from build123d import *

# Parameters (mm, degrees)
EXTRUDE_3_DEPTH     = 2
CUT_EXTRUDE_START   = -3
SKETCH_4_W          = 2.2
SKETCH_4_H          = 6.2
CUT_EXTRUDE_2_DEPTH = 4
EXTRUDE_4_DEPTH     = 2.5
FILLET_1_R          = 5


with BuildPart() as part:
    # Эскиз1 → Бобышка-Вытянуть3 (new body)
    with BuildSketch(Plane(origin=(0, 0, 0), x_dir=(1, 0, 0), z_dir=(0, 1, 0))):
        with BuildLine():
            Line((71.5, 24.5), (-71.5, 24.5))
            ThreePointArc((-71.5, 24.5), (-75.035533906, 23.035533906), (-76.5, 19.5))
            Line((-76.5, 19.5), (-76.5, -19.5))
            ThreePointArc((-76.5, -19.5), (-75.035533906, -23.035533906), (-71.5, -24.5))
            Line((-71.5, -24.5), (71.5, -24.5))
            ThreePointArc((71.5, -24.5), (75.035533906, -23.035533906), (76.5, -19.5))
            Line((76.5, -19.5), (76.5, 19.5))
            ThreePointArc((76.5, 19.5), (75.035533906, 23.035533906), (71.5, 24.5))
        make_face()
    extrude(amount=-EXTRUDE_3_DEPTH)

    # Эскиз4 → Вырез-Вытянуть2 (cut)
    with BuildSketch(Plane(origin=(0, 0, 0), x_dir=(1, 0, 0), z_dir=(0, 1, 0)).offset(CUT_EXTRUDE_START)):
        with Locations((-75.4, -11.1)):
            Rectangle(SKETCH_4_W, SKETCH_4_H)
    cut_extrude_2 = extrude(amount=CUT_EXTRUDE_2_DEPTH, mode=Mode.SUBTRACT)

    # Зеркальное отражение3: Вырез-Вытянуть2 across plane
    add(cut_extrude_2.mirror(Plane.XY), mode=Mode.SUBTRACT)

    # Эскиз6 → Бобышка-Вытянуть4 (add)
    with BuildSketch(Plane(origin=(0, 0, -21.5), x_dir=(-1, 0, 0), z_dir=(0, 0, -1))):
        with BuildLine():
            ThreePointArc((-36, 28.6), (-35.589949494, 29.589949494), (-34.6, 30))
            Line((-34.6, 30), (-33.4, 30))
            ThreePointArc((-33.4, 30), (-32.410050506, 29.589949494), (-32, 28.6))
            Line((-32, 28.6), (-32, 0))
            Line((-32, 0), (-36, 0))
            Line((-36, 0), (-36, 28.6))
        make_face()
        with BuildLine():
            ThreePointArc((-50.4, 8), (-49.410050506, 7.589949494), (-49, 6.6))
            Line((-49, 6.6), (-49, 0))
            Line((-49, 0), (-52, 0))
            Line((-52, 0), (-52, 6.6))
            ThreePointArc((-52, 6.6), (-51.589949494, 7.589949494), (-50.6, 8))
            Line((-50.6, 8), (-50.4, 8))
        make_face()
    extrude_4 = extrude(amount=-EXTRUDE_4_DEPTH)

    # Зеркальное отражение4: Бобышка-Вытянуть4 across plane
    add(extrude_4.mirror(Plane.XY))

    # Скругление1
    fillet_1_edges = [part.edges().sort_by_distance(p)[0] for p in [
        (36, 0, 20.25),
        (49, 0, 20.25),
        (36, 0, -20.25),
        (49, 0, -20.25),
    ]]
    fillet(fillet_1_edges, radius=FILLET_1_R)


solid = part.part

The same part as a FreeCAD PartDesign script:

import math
import FreeCAD as App
import Part
import Sketcher


def edges_at(feature, points):
    """Names of the edges that pass closest to the given points."""
    edges = feature.Shape.Edges
    near = lambda p: min(range(len(edges)), key=lambda i: edges[i].distToShape(Part.Vertex(*p))[0])
    return sorted({f"Edge{near(p) + 1}" for p in points})

doc = App.newDocument("Part")
body = doc.addObject("PartDesign::Body", "Body")

# Sketch on XZ plane
sketch1 = body.newObject("Sketcher::SketchObject", "Sketch")
sketch1.AttachmentSupport = (doc.getObject("XZ_Plane"), [""])
sketch1.MapMode = "FlatFace"
sketch1.addGeometry(Part.LineSegment(App.Vector(72, -24, 0), App.Vector(-72, -24, 0)), False)
sketch1.addGeometry(Part.ArcOfCircle(Part.Circle(App.Vector(-72, -20, 0), App.Vector(0, 0, 1), 5), math.radians(180), math.radians(270)), False)
sketch1.addGeometry(Part.LineSegment(App.Vector(-76, -20, 0), App.Vector(-76, 20, 0)), False)
sketch1.addGeometry(Part.ArcOfCircle(Part.Circle(App.Vector(-72, 20, 0), App.Vector(0, 0, 1), 5), math.radians(90), math.radians(180)), False)
sketch1.addGeometry(Part.LineSegment(App.Vector(-72, 24, 0), App.Vector(72, 24, 0)), False)
sketch1.addGeometry(Part.ArcOfCircle(Part.Circle(App.Vector(72, 20, 0), App.Vector(0, 0, 1), 5), math.radians(0), math.radians(90)), False)
sketch1.addGeometry(Part.LineSegment(App.Vector(76, 20, 0), App.Vector(76, -20, 0)), False)
sketch1.addGeometry(Part.ArcOfCircle(Part.Circle(App.Vector(72, -20, 0), App.Vector(0, 0, 1), 5), math.radians(-90), math.radians(0)), False)
sketch1.addConstraint(Sketcher.Constraint("Tangent", 0, 2, 1, 2))
sketch1.addConstraint(Sketcher.Constraint("Tangent", 1, 1, 2, 1))
sketch1.addConstraint(Sketcher.Constraint("Tangent", 2, 2, 3, 2))
sketch1.addConstraint(Sketcher.Constraint("Tangent", 3, 1, 4, 1))
sketch1.addConstraint(Sketcher.Constraint("Tangent", 4, 2, 5, 2))
sketch1.addConstraint(Sketcher.Constraint("Tangent", 5, 1, 6, 1))
sketch1.addConstraint(Sketcher.Constraint("Tangent", 6, 2, 7, 2))
sketch1.addConstraint(Sketcher.Constraint("Tangent", 7, 1, 0, 1))
sketch1.addConstraint(Sketcher.Constraint("Horizontal", 0))
sketch1.addConstraint(Sketcher.Constraint("Vertical", 2))
sketch1.addConstraint(Sketcher.Constraint("Horizontal", 4))
sketch1.addConstraint(Sketcher.Constraint("Vertical", 6))
sketch1.addConstraint(Sketcher.Constraint("Equal", 1, 3))
sketch1.addConstraint(Sketcher.Constraint("Equal", 3, 5))
sketch1.addConstraint(Sketcher.Constraint("Equal", 5, 7))
sketch1.addConstraint(Sketcher.Constraint("Symmetric", 1, 3, 5, 3, -1, 1))
sketch1.addConstraint(Sketcher.Constraint("Radius", 1, 5.0))
sketch1.addConstraint(Sketcher.Constraint("DistanceX", 0, 2, 0, 1, 143.0))
sketch1.addConstraint(Sketcher.Constraint("DistanceY", 2, 1, 2, 2, 39.0))
pad1 = body.newObject("PartDesign::Pad", "Pad")
pad1.Profile = sketch1
pad1.Length = 2

# Sketch on XZ plane
sketch2 = body.newObject("Sketcher::SketchObject", "Sketch001")
sketch2.AttachmentSupport = (doc.getObject("XZ_Plane"), [""])
sketch2.MapMode = "FlatFace"
sketch2.AttachmentOffset = App.Placement(App.Vector(0, 0, 3), App.Rotation())
sketch2.addGeometry(Part.LineSegment(App.Vector(-76.5, 8, 0), App.Vector(-76.5, 14.2, 0)), False)
sketch2.addGeometry(Part.LineSegment(App.Vector(-76.5, 14.2, 0), App.Vector(-74.3, 14.2, 0)), False)
sketch2.addGeometry(Part.LineSegment(App.Vector(-74.3, 14.2, 0), App.Vector(-74.3, 8, 0)), False)
sketch2.addGeometry(Part.LineSegment(App.Vector(-74.3, 8, 0), App.Vector(-76.5, 8, 0)), False)
sketch2.addConstraint(Sketcher.Constraint("Coincident", 0, 2, 1, 1))
sketch2.addConstraint(Sketcher.Constraint("Coincident", 1, 2, 2, 1))
sketch2.addConstraint(Sketcher.Constraint("Coincident", 2, 2, 3, 1))
sketch2.addConstraint(Sketcher.Constraint("Coincident", 3, 2, 0, 1))
sketch2.addConstraint(Sketcher.Constraint("Vertical", 0))
sketch2.addConstraint(Sketcher.Constraint("Horizontal", 1))
sketch2.addConstraint(Sketcher.Constraint("Vertical", 2))
sketch2.addConstraint(Sketcher.Constraint("Horizontal", 3))
sketch2.addConstraint(Sketcher.Constraint("DistanceX", 1, 1, 1, 2, 2.2))
sketch2.addConstraint(Sketcher.Constraint("DistanceY", 0, 1, 0, 2, 6.2))
sketch2.addConstraint(Sketcher.Constraint("DistanceY", -1, 1, 2, 2, 8.0))
sketch2.addConstraint(Sketcher.Constraint("DistanceX", 0, 2, -1, 1, 76.5))
pocket1 = body.newObject("PartDesign::Pocket", "Pocket")
pocket1.Profile = sketch2
pocket1.Length = 4
doc.recompute()

mirrored = body.newObject("PartDesign::Mirrored", "Mirrored")
mirrored.Originals = [pocket1]
mirrored.MirrorPlane = (doc.getObject("XY_Plane"), [""])
body.Tip = mirrored

# Sketch on XY plane
sketch3 = body.newObject("Sketcher::SketchObject", "Sketch002")
sketch3.AttachmentSupport = (doc.getObject("XY_Plane"), [""])
sketch3.MapMode = "FlatFace"
sketch3.AttachmentOffset = App.Placement(App.Vector(0, 0, -21.5), App.Rotation())
sketch3.addGeometry(Part.ArcOfCircle(Part.Circle(App.Vector(34.6, 28.6, 0), App.Vector(0, 0, 1), 1.4), math.radians(0), math.radians(90)), False)
sketch3.addGeometry(Part.LineSegment(App.Vector(36, 28.6, 0), App.Vector(36, 0, 0)), False)
sketch3.addGeometry(Part.LineSegment(App.Vector(36, 0, 0), App.Vector(32, 0, 0)), False)
sketch3.addGeometry(Part.LineSegment(App.Vector(32, 0, 0), App.Vector(32, 28.6, 0)), False)
sketch3.addGeometry(Part.ArcOfCircle(Part.Circle(App.Vector(33.4, 28.6, 0), App.Vector(0, 0, 1), 1.4), math.radians(90), math.radians(180)), False)
sketch3.addGeometry(Part.LineSegment(App.Vector(33.4, 30, 0), App.Vector(34.6, 30, 0)), False)
sketch3.addGeometry(Part.ArcOfCircle(Part.Circle(App.Vector(50.4, 6.6, 0), App.Vector(0, 0, 1), 1.4), math.radians(90), math.radians(180)), False)
sketch3.addGeometry(Part.LineSegment(App.Vector(50.4, 8, 0), App.Vector(50.6, 8, 0)), False)
sketch3.addGeometry(Part.ArcOfCircle(Part.Circle(App.Vector(50.6, 6.6, 0), App.Vector(0, 0, 1), 1.4), math.radians(0), math.radians(90)), False)
sketch3.addGeometry(Part.LineSegment(App.Vector(52, 6.6, 0), App.Vector(52, 0, 0)), False)
sketch3.addGeometry(Part.LineSegment(App.Vector(52, 0, 0), App.Vector(49, 0, 0)), False)
sketch3.addGeometry(Part.LineSegment(App.Vector(49, 0, 0), App.Vector(49, 6.6, 0)), False)
sketch3.addConstraint(Sketcher.Constraint("Tangent", 0, 1, 1, 1))
sketch3.addConstraint(Sketcher.Constraint("Coincident", 1, 2, 2, 1))
sketch3.addConstraint(Sketcher.Constraint("Coincident", 2, 2, 3, 1))
sketch3.addConstraint(Sketcher.Constraint("Tangent", 3, 2, 4, 2))
sketch3.addConstraint(Sketcher.Constraint("Tangent", 4, 1, 5, 1))
sketch3.addConstraint(Sketcher.Constraint("Tangent", 5, 2, 0, 2))
sketch3.addConstraint(Sketcher.Constraint("Tangent", 6, 1, 7, 1))
sketch3.addConstraint(Sketcher.Constraint("Tangent", 7, 2, 8, 2))
sketch3.addConstraint(Sketcher.Constraint("Tangent", 8, 1, 9, 1))
sketch3.addConstraint(Sketcher.Constraint("Coincident", 9, 2, 10, 1))
sketch3.addConstraint(Sketcher.Constraint("Coincident", 10, 2, 11, 1))
sketch3.addConstraint(Sketcher.Constraint("Tangent", 11, 2, 6, 2))
sketch3.addConstraint(Sketcher.Constraint("Vertical", 1))
sketch3.addConstraint(Sketcher.Constraint("Horizontal", 2))
sketch3.addConstraint(Sketcher.Constraint("Vertical", 3))
sketch3.addConstraint(Sketcher.Constraint("Horizontal", 5))
sketch3.addConstraint(Sketcher.Constraint("Horizontal", 7))
sketch3.addConstraint(Sketcher.Constraint("Vertical", 9))
sketch3.addConstraint(Sketcher.Constraint("Horizontal", 10))
sketch3.addConstraint(Sketcher.Constraint("Vertical", 11))
sketch3.addConstraint(Sketcher.Constraint("Equal", 0, 4))
sketch3.addConstraint(Sketcher.Constraint("Equal", 4, 6))
sketch3.addConstraint(Sketcher.Constraint("Equal", 6, 8))
sketch3.addConstraint(Sketcher.Constraint("PointOnObject", 1, 2, -1))
sketch3.addConstraint(Sketcher.Constraint("PointOnObject", 9, 2, -1))
sketch3.addConstraint(Sketcher.Constraint("Radius", 0, 1.4))
sketch3.addConstraint(Sketcher.Constraint("DistanceX", 2, 2, 2, 1, 4.0))
sketch3.addConstraint(Sketcher.Constraint("DistanceX", 10, 2, 10, 1, 3.0))
sketch3.addConstraint(Sketcher.Constraint("DistanceY", 1, 2, 1, 1, 28.6))
sketch3.addConstraint(Sketcher.Constraint("DistanceY", 9, 2, 9, 1, 6.6))
sketch3.addConstraint(Sketcher.Constraint("DistanceX", -1, 1, 0, 1, 36.0))
sketch3.addConstraint(Sketcher.Constraint("DistanceX", -1, 1, 8, 1, 52.0))
pad2 = body.newObject("PartDesign::Pad", "Pad001")
pad2.Profile = sketch3
pad2.Length = 2.5
doc.recompute()

mirrored2 = body.newObject("PartDesign::Mirrored", "Mirrored001")
mirrored2.Originals = [pad2]
mirrored2.MirrorPlane = (doc.getObject("XY_Plane"), [""])
body.Tip = mirrored2
doc.recompute()

fillet = body.newObject("PartDesign::Fillet", "Fillet")
fillet.Base = (mirrored2, edges_at(mirrored2, [
    (36, 0, 20.25),
    (49, 0, 20.25),
    (36, 0, -20.25),
    (49, 0, -20.25),
]))
fillet.Radius = 5

doc.recompute()
